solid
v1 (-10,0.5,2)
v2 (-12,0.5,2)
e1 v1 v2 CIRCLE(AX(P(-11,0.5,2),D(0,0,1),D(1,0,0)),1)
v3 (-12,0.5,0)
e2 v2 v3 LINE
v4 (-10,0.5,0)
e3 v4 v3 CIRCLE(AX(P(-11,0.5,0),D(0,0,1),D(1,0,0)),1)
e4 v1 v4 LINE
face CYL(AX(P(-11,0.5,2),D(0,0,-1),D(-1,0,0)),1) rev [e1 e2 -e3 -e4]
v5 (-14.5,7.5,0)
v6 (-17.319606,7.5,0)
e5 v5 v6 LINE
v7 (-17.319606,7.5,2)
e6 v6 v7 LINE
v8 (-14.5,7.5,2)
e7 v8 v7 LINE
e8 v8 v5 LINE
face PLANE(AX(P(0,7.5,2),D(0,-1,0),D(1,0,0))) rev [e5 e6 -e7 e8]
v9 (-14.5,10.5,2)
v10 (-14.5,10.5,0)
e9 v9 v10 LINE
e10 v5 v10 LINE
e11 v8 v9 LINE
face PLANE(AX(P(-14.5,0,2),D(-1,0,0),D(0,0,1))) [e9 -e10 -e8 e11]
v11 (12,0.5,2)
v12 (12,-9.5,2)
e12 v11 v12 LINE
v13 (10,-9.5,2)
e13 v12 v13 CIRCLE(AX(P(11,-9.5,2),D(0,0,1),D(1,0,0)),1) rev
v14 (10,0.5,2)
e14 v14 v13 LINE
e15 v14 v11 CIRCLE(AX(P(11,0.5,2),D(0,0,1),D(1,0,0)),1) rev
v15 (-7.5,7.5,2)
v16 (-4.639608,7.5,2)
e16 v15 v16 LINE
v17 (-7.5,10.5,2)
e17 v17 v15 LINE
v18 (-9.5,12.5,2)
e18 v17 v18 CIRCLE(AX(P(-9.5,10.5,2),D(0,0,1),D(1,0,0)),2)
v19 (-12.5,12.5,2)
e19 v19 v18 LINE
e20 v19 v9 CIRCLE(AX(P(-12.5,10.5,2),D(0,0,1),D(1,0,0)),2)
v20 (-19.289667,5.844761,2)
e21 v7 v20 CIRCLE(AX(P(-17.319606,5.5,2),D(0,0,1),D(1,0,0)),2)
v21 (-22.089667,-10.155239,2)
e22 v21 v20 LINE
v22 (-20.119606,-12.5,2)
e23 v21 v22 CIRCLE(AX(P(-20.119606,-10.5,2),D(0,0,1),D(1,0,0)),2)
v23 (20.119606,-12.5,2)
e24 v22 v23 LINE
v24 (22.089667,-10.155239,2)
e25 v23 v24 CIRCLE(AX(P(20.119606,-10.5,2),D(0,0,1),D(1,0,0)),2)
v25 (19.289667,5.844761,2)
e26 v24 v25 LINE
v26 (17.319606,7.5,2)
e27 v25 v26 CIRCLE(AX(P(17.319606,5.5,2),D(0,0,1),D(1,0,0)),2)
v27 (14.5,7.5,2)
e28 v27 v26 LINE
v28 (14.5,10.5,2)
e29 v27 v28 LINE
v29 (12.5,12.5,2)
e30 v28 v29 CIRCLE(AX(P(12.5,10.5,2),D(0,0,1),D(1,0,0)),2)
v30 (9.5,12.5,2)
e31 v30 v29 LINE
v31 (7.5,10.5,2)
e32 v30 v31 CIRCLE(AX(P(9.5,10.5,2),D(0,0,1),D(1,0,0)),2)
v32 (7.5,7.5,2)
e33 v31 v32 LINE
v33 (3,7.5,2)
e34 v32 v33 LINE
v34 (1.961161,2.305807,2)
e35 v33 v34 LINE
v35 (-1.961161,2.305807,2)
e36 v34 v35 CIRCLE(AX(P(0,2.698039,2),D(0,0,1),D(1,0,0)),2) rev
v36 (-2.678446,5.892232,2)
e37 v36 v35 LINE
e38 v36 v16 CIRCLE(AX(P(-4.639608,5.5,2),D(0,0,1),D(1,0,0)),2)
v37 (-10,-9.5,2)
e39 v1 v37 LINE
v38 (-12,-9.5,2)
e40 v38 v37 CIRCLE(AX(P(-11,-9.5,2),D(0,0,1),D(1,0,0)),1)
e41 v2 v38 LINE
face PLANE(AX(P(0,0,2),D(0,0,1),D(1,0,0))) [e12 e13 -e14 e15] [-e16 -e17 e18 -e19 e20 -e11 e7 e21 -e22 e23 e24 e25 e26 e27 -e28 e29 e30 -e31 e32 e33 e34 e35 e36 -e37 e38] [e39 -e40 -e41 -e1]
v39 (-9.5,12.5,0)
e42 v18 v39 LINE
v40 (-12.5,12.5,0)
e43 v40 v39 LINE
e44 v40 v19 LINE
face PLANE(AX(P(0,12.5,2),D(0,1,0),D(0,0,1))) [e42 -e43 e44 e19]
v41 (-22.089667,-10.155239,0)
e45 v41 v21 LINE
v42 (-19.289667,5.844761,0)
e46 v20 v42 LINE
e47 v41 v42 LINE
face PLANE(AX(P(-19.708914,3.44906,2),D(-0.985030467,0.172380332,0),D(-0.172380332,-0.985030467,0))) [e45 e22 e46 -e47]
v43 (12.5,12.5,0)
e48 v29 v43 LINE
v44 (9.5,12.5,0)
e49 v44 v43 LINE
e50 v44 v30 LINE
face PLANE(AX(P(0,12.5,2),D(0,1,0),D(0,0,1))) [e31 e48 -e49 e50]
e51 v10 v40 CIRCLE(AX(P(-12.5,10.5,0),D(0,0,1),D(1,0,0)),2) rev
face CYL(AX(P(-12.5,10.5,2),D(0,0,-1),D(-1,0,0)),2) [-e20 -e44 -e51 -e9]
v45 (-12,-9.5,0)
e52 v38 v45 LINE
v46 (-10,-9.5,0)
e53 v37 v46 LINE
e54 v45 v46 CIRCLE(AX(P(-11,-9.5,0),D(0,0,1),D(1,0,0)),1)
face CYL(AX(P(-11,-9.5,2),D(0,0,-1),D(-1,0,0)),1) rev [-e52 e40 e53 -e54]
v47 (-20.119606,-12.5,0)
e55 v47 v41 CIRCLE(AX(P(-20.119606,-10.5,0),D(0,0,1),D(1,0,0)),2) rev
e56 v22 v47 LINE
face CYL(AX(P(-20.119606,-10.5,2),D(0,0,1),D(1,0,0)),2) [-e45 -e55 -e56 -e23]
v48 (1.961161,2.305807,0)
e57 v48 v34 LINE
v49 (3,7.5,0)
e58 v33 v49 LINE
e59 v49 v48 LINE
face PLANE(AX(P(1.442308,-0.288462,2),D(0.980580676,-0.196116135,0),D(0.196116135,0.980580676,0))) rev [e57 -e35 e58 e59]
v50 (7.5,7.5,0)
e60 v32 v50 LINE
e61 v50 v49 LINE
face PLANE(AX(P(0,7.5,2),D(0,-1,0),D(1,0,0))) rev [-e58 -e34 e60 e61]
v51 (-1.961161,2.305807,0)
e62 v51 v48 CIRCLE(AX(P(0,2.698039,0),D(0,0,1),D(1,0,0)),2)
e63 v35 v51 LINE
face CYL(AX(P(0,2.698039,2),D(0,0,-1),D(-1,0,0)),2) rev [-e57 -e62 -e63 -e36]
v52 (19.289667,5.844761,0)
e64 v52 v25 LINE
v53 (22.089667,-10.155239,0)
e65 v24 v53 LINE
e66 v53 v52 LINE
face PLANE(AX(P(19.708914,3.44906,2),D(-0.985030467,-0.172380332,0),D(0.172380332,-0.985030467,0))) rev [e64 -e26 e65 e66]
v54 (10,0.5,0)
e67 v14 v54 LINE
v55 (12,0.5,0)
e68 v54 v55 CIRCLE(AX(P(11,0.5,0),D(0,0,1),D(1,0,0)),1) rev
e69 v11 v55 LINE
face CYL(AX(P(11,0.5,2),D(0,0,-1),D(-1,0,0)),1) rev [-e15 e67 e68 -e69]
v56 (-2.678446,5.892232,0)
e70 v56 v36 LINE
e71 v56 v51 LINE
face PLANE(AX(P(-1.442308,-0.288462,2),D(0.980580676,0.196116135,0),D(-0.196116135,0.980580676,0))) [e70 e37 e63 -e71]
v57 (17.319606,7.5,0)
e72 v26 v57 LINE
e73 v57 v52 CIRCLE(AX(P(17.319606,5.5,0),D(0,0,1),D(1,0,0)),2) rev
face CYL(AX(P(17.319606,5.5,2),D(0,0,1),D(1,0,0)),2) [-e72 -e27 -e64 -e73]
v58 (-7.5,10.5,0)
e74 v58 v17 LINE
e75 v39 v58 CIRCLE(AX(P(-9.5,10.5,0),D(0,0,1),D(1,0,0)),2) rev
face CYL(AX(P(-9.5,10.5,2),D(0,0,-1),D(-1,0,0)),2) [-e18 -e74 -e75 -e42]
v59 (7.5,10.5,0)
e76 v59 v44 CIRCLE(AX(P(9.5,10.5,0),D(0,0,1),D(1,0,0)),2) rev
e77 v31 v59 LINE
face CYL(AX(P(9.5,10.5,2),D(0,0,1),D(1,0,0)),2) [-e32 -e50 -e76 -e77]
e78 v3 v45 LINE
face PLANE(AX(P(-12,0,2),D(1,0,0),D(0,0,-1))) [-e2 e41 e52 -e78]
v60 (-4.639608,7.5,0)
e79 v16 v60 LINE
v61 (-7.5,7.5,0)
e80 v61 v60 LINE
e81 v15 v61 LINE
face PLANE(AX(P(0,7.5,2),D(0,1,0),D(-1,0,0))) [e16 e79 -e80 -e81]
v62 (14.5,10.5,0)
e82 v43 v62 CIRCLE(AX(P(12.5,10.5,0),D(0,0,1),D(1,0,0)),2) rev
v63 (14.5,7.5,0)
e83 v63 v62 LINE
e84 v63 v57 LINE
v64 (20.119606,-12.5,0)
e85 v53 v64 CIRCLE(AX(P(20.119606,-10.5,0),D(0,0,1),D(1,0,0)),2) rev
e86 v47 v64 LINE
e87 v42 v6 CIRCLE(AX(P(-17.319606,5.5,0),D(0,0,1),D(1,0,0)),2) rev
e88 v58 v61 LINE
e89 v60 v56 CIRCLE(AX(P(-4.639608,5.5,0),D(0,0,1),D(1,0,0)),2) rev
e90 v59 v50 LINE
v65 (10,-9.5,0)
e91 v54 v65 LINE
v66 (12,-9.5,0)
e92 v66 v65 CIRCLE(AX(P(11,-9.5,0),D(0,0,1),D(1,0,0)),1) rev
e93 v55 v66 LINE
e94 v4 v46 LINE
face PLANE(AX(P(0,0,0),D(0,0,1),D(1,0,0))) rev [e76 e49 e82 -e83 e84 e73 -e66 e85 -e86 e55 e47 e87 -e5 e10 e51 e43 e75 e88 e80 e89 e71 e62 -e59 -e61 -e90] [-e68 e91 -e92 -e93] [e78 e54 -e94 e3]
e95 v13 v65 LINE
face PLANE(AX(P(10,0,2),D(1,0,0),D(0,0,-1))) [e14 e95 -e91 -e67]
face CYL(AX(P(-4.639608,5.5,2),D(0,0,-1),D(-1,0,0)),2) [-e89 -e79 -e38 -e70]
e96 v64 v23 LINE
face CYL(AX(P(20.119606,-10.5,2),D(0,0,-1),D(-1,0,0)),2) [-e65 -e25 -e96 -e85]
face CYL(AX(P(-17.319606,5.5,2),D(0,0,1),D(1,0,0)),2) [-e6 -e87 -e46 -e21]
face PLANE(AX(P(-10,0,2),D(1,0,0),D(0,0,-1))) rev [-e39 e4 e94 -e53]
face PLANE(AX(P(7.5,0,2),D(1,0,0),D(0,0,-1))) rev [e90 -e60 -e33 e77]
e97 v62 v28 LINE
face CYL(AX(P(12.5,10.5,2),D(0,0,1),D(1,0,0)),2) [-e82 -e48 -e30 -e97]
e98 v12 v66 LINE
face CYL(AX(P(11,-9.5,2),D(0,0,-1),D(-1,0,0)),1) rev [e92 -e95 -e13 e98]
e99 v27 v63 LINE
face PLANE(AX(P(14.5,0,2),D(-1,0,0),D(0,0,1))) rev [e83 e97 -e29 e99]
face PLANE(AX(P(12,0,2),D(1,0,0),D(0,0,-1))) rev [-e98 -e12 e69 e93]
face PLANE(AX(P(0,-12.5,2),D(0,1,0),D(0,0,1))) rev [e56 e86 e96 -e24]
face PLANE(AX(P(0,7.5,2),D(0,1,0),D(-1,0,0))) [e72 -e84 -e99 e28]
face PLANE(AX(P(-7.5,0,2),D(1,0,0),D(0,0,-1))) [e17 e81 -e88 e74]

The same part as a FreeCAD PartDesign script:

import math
import FreeCAD as App
import Part
import Sketcher
from FreeCAD import Vector


def edges_at(feature, points):
    """Names of the edges that pass closest to the given points."""
    edges = feature.Shape.Edges
    near = lambda p: min(range(len(edges)), key=lambda i: edges[i].distToShape(Part.Vertex(*p))[0])
    return sorted({f"Edge{near(p) + 1}" for p in points})

doc = App.newDocument("Part")
params = doc.addObject("Spreadsheet::Sheet", "Params")
for row, (alias, value) in enumerate([
    ("sketch1_radius", "1 mm"),
    ("sketch1_width", "7 mm"),
    ("sketch1_width2", "45 mm"),
    ("sketch1_height", "5 mm"),
    ("sketch1_height2", "10 mm"),
    ("pad1_length", "2 mm"),
    ("fillet_radius", "2 mm"),
], start=1):
    params.set(f"A{row}", alias)
    params.set(f"B{row}", "=" + value)
    params.setAlias(f"B{row}", alias)

body = doc.addObject("PartDesign::Body", "Body")

sketch1 = body.newObject("Sketcher::SketchObject", "Sketch")
sketch1.AttachmentSupport = (doc.getObject("XY_Plane"), [""])
sketch1.MapMode = "FlatFace"
sketch1.addGeometry(Part.LineSegment(Vector(-7.5, 12.5, 0), Vector(-14.5, 12.5, 0)), False)
sketch1.addGeometry(Part.LineSegment(Vector(-14.5, 12.5, 0), Vector(-14.5, 7.5, 0)), False)
sketch1.addGeometry(Part.LineSegment(Vector(-14.5, 7.5, 0), Vector(-19, 7.5, 0)), False)
sketch1.addGeometry(Part.LineSegment(Vector(-19, 7.5, 0), Vector(-22.5, -12.5, 0)), False)
sketch1.addGeometry(Part.LineSegment(Vector(-22.5, -12.5, 0), Vector(22.5, -12.5, 0)), False)
sketch1.addGeometry(Part.LineSegment(Vector(22.5, -12.5, 0), Vector(19, 7.5, 0)), False)
sketch1.addGeometry(Part.LineSegment(Vector(19, 7.5, 0), Vector(14.5, 7.5, 0)), False)
sketch1.addGeometry(Part.LineSegment(Vector(14.5, 7.5, 0), Vector(14.5, 12.5, 0)), False)
sketch1.addGeometry(Part.LineSegment(Vector(14.5, 12.5, 0), Vector(7.5, 12.5, 0)), False)
sketch1.addGeometry(Part.LineSegment(Vector(7.5, 12.5, 0), Vector(7.5, 7.5, 0)), False)
sketch1.addGeometry(Part.LineSegment(Vector(7.5, 7.5, 0), Vector(3, 7.5, 0)), False)
sketch1.addGeometry(Part.LineSegment(Vector(3, 7.5, 0), Vector(0, -7.5, 0)), False)
sketch1.addGeometry(Part.LineSegment(Vector(0, -7.5, 0), Vector(-3, 7.5, 0)), False)
sketch1.addGeometry(Part.LineSegment(Vector(-3, 7.5, 0), Vector(-7.5, 7.5, 0)), False)
sketch1.addGeometry(Part.LineSegment(Vector(-7.5, 7.5, 0), Vector(-7.5, 12.5, 0)), False)
sketch1.addGeometry(Part.LineSegment(Vector(-12, -9.5, 0), Vector(-12, 0.5, 0)), False)
sketch1.addGeometry(Part.ArcOfCircle(Part.Circle(Vector(-11, 0.5, 0), Vector(0, 0, 1), 1), math.radians(0), math.radians(180)), False)
sketch1.addGeometry(Part.LineSegment(Vector(-10, 0.5, 0), Vector(-10, -9.5, 0)), False)
sketch1.addGeometry(Part.ArcOfCircle(Part.Circle(Vector(-11, -9.5, 0), Vector(0, 0, 1), 1), math.radians(180), math.radians(360)), False)
sketch1.addGeometry(Part.ArcOfCircle(Part.Circle(Vector(11, -9.5, 0), Vector(0, 0, 1), 1), math.radians(180), math.radians(360)), False)
sketch1.addGeometry(Part.LineSegment(Vector(10, -9.5, 0), Vector(10, 0.5, 0)), False)
sketch1.addGeometry(Part.ArcOfCircle(Part.Circle(Vector(11, 0.5, 0), Vector(0, 0, 1), 1), math.radians(0), math.radians(180)), False)
sketch1.addGeometry(Part.LineSegment(Vector(12, 0.5, 0), Vector(12, -9.5, 0)), False)
sketch1.addConstraint(Sketcher.Constraint("Coincident", 0, 2, 1, 1))
sketch1.addConstraint(Sketcher.Constraint("Coincident", 1, 2, 2, 1))
sketch1.addConstraint(Sketcher.Constraint("Coincident", 2, 2, 3, 1))
sketch1.addConstraint(Sketcher.Constraint("Coincident", 3, 2, 4, 1))
sketch1.addConstraint(Sketcher.Constraint("Coincident", 4, 2, 5, 1))
sketch1.addConstraint(Sketcher.Constraint("Coincident", 5, 2, 6, 1))
sketch1.addConstraint(Sketcher.Constraint("Coincident", 6, 2, 7, 1))
sketch1.addConstraint(Sketcher.Constraint("Coincident", 7, 2, 8, 1))
sketch1.addConstraint(Sketcher.Constraint("Coincident", 8, 2, 9, 1))
sketch1.addConstraint(Sketcher.Constraint("Coincident", 9, 2, 10, 1))
sketch1.addConstraint(Sketcher.Constraint("Coincident", 10, 2, 11, 1))
sketch1.addConstraint(Sketcher.Constraint("Coincident", 11, 2, 12, 1))
sketch1.addConstraint(Sketcher.Constraint("Coincident", 12, 2, 13, 1))
sketch1.addConstraint(Sketcher.Constraint("Coincident", 13, 2, 14, 1))
sketch1.addConstraint(Sketcher.Constraint("Coincident", 14, 2, 0, 1))
sketch1.addConstraint(Sketcher.Constraint("Tangent", 15, 2, 16, 2))
sketch1.addConstraint(Sketcher.Constraint("Tangent", 16, 1, 17, 1))
sketch1.addConstraint(Sketcher.Constraint("Tangent", 17, 2, 18, 2))
sketch1.addConstraint(Sketcher.Constraint("Tangent", 18, 1, 15, 1))
sketch1.addConstraint(Sketcher.Constraint("Tangent", 19, 1, 20, 1))
sketch1.addConstraint(Sketcher.Constraint("Tangent", 20, 2, 21, 2))
sketch1.addConstraint(Sketcher.Constraint("Tangent", 21, 1, 22, 1))
sketch1.addConstraint(Sketcher.Constraint("Tangent", 22, 2, 19, 2))
sketch1.addConstraint(Sketcher.Constraint("Horizontal", 0))
sketch1.addConstraint(Sketcher.Constraint("Vertical", 1))
sketch1.addConstraint(Sketcher.Constraint("Horizontal", 2))
sketch1.addConstraint(Sketcher.Constraint("Horizontal", 4))
sketch1.addConstraint(Sketcher.Constraint("Horizontal", 6))
sketch1.addConstraint(Sketcher.Constraint("Vertical", 7))
sketch1.addConstraint(Sketcher.Constraint("Horizontal", 8))
sketch1.addConstraint(Sketcher.Constraint("Vertical", 9))
sketch1.addConstraint(Sketcher.Constraint("Horizontal", 10))
sketch1.addConstraint(Sketcher.Constraint("Horizontal", 13))
sketch1.addConstraint(Sketcher.Constraint("Vertical", 14))
sketch1.addConstraint(Sketcher.Constraint("Vertical", 15))
sketch1.addConstraint(Sketcher.Constraint("Vertical", 17))
sketch1.addConstraint(Sketcher.Constraint("Vertical", 20))
sketch1.addConstraint(Sketcher.Constraint("Vertical", 22))
sketch1.addConstraint(Sketcher.Constraint("Equal", 18, 19))
sketch1.addConstraint(Sketcher.Constraint("Symmetric", 18, 3, 19, 3, -2))
sketch1.addConstraint(Sketcher.Constraint("Symmetric", 2, 2, 5, 2, -2))
sketch1.addConstraint(Sketcher.Constraint("Symmetric", 0, 2, 7, 2, -2))
sketch1.addConstraint(Sketcher.Constraint("Symmetric", 10, 2, 12, 2, -2))
sketch1.addConstraint(Sketcher.Constraint("PointOnObject", 11, 2, -2))
sketch1.addConstraint(Sketcher.Constraint("Horizontal", 16, 3, 21, 3))
sketch1.addConstraint(Sketcher.Constraint("Horizontal", 6, 2, 9, 2))
sketch1.addConstraint(Sketcher.Constraint("Equal", 0, 8))
sketch1.addConstraint(Sketcher.Constraint("Equal", 6, 10))
sketch1.addConstraint(Sketcher.Constraint("Equal", 3, 5))
sketch1.addConstraint(Sketcher.Constraint("Radius", 16, 1.0))
sketch1.addConstraint(Sketcher.Constraint("DistanceX", 0, 2, 0, 1, 7.0))
sketch1.addConstraint(Sketcher.Constraint("DistanceX", 4, 1, 4, 2, 45.0))
sketch1.addConstraint(Sketcher.Constraint("DistanceY", 1, 2, 1, 1, 5.0))
sketch1.addConstraint(Sketcher.Constraint("DistanceY", 15, 1, 15, 2, 10.0))
sketch1.addConstraint(Sketcher.Constraint("DistanceX", 2, 2, 2, 1, 4.5))
sketch1.addConstraint(Sketcher.Constraint("DistanceX", 16, 3, -1, 1, 11.0))
sketch1.addConstraint(Sketcher.Constraint("DistanceX", 2, 2, -1, 1, 19.0))
sketch1.addConstraint(Sketcher.Constraint("DistanceY", 16, 3, 0, 2, 12.0))
sketch1.addConstraint(Sketcher.Constraint("DistanceY", 3, 2, 18, 3, 3.0))
sketch1.addConstraint(Sketcher.Constraint("DistanceY", 18, 3, 11, 2, 2.0))
sketch1.addConstraint(Sketcher.Constraint("DistanceY", -1, 1, 16, 3, 0.5))
sketch1.setExpression("Constraints[49]", "Params.sketch1_radius")
sketch1.setExpression("Constraints[50]", "Params.sketch1_width")
sketch1.setExpression("Constraints[51]", "Params.sketch1_width2")
sketch1.setExpression("Constraints[52]", "Params.sketch1_height")
sketch1.setExpression("Constraints[53]", "Params.sketch1_height2")
pad1 = body.newObject("PartDesign::Pad", "Pad")
pad1.Profile = sketch1
pad1.setExpression("Length", "Params.pad1_length")
doc.recompute()

fillet = body.newObject("PartDesign::Fillet", "Fillet")
fillet.Base = (pad1, edges_at(pad1, [
    (-22.5, -12.5, 1),
    (-19, 7.5, 1),
    (-14.5, 12.5, 1),
    (-7.5, 12.5, 1),
    (-3, 7.5, 1),
    (0, -7.5, 1),
    (7.5, 12.5, 1),
    (14.5, 12.5, 1),
    (19, 7.5, 1),
    (22.5, -12.5, 1),
]))
fillet.setExpression("Radius", "Params.fillet_radius")

doc.recompute()
